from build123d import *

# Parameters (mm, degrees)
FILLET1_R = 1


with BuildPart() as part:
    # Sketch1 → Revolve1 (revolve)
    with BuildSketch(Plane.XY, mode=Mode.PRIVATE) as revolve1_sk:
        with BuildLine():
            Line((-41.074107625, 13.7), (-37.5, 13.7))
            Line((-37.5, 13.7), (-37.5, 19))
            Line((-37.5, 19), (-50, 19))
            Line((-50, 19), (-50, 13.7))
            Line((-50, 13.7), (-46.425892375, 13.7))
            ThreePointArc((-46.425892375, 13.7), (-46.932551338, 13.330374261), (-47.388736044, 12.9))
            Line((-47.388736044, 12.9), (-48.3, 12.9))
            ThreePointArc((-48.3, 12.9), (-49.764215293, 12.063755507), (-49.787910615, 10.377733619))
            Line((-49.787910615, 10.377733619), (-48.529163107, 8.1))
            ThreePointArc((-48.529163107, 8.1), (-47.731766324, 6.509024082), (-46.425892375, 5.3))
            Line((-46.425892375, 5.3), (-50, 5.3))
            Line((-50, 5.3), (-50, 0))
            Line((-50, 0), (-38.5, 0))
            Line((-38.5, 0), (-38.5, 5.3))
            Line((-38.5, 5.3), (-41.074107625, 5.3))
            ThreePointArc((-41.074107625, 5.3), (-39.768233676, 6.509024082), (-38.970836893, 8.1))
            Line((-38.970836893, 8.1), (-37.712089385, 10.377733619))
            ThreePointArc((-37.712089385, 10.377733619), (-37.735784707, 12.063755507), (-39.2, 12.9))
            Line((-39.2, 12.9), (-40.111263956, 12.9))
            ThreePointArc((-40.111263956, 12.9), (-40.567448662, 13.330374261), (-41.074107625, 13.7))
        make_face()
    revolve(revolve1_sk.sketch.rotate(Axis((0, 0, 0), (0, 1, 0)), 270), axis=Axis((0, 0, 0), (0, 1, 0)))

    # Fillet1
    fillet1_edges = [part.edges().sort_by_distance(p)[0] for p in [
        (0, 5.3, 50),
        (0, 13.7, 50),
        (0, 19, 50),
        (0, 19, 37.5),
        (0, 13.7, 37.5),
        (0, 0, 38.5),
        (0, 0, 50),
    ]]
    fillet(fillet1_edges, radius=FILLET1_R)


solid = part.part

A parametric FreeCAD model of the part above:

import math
import FreeCAD as App
import Part
import Sketcher


def edges_at(feature, points):
    """Names of the edges that pass closest to the given points."""
    edges = feature.Shape.Edges
    near = lambda p: min(range(len(edges)), key=lambda i: edges[i].distToShape(Part.Vertex(*p))[0])
    return sorted({f"Edge{near(p) + 1}" for p in points})

doc = App.newDocument("Part")
body = doc.addObject("PartDesign::Body", "Body")

# Sketch on XY plane
sketch1 = body.newObject("Sketcher::SketchObject", "Sketch")
sketch1.AttachmentSupport = (doc.getObject("XY_Plane"), [""])
sketch1.MapMode = "FlatFace"
sketch1.addGeometry(Part.LineSegment(App.Vector(-41.074108, 13.7, 0), App.Vector(-37.5, 13.7, 0)), False)
sketch1.addGeometry(Part.LineSegment(App.Vector(-37.5, 13.7, 0), App.Vector(-37.5, 19, 0)), False)
sketch1.addGeometry(Part.LineSegment(App.Vector(-37.5, 19, 0), App.Vector(-50, 19, 0)), False)
sketch1.addGeometry(Part.LineSegment(App.Vector(-50, 19, 0), App.Vector(-50, 13.7, 0)), False)
sketch1.addGeometry(Part.LineSegment(App.Vector(-50, 13.7, 0), App.Vector(-46.425892, 13.7, 0)), False)
sketch1.addGeometry(Part.ArcOfCircle(Part.Circle(App.Vector(-43.75, 9.5, 0), App.Vector(0, 0, 1), 4.98), math.radians(122.501914), math.radians(136.942583)), False)
sketch1.addGeometry(Part.LineSegment(App.Vector(-47.388736, 12.9, 0), App.Vector(-48.3, 12.9, 0)), False)
sketch1.addGeometry(Part.ArcOfCircle(Part.Circle(App.Vector(-48.3, 11.2, 0), App.Vector(0, 0, 1), 1.7), math.radians(90), math.radians(208.926425)), False)
sketch1.addGeometry(Part.LineSegment(App.Vector(-49.787911, 10.377734, 0), App.Vector(-48.529163, 8.1, 0)), False)
sketch1.addGeometry(Part.ArcOfCircle(Part.Circle(App.Vector(-43.75, 9.5, 0), App.Vector(0, 0, 1), 4.98), math.radians(-163.67267), math.radians(-122.501914)), False)
sketch1.addGeometry(Part.LineSegment(App.Vector(-46.425892, 5.3, 0), App.Vector(-50, 5.3, 0)), False)
sketch1.addGeometry(Part.LineSegment(App.Vector(-50, 5.3, 0), App.Vector(-50, 0, 0)), False)
sketch1.addGeometry(Part.LineSegment(App.Vector(-50, 0, 0), App.Vector(-38.5, 0, 0)), False)
sketch1.addGeometry(Part.LineSegment(App.Vector(-38.5, 0, 0), App.Vector(-38.5, 5.3, 0)), False)
sketch1.addGeometry(Part.LineSegment(App.Vector(-38.5, 5.3, 0), App.Vector(-41.074108, 5.3, 0)), False)
sketch1.addGeometry(Part.ArcOfCircle(Part.Circle(App.Vector(-43.75, 9.5, 0), App.Vector(0, 0, 1), 4.98), math.radians(-57.498086), math.radians(-16.32733)), False)
sketch1.addGeometry(Part.LineSegment(App.Vector(-38.970837, 8.1, 0), App.Vector(-37.712089, 10.377734, 0)), False)
sketch1.addGeometry(Part.ArcOfCircle(Part.Circle(App.Vector(-39.2, 11.2, 0), App.Vector(0, 0, 1), 1.7), math.radians(-28.926425), math.radians(90)), False)
sketch1.addGeometry(Part.LineSegment(App.Vector(-39.2, 12.9, 0), App.Vector(-40.111264, 12.9, 0)), False)
sketch1.addGeometry(Part.ArcOfCircle(Part.Circle(App.Vector(-43.75, 9.5, 0), App.Vector(0, 0, 1), 4.98), math.radians(43.057417), math.radians(57.498086)), False)
sketch1.addConstraint(Sketcher.Constraint("Coincident", 0, 2, 1, 1))
sketch1.addConstraint(Sketcher.Constraint("Coincident", 1, 2, 2, 1))
sketch1.addConstraint(Sketcher.Constraint("Coincident", 2, 2, 3, 1))
sketch1.addConstraint(Sketcher.Constraint("Coincident", 3, 2, 4, 1))
sketch1.addConstraint(Sketcher.Constraint("Coincident", 4, 2, 5, 1))
sketch1.addConstraint(Sketcher.Constraint("Coincident", 5, 2, 6, 1))
sketch1.addConstraint(Sketcher.Constraint("Tangent", 6, 2, 7, 1))
sketch1.addConstraint(Sketcher.Constraint("Tangent", 7, 2, 8, 1))
sketch1.addConstraint(Sketcher.Constraint("Coincident", 8, 2, 9, 1))
sketch1.addConstraint(Sketcher.Constraint("Coincident", 9, 2, 10, 1))
sketch1.addConstraint(Sketcher.Constraint("Coincident", 10, 2, 11, 1))
sketch1.addConstraint(Sketcher.Constraint("Coincident", 11, 2, 12, 1))
sketch1.addConstraint(Sketcher.Constraint("Coincident", 12, 2, 13, 1))
sketch1.addConstraint(Sketcher.Constraint("Coincident", 13, 2, 14, 1))
sketch1.addConstraint(Sketcher.Constraint("Coincident", 14, 2, 15, 1))
sketch1.addConstraint(Sketcher.Constraint("Coincident", 15, 2, 16, 1))
sketch1.addConstraint(Sketcher.Constraint("Tangent", 16, 2, 17, 1))
sketch1.addConstraint(Sketcher.Constraint("Tangent", 17, 2, 18, 1))
sketch1.addConstraint(Sketcher.Constraint("Coincident", 18, 2, 19, 1))
sketch1.addConstraint(Sketcher.Constraint("Coincident", 19, 2, 0, 1))
sketch1.addConstraint(Sketcher.Constraint("Horizontal", 0))
sketch1.addConstraint(Sketcher.Constraint("Vertical", 1))
sketch1.addConstraint(Sketcher.Constraint("Horizontal", 2))
sketch1.addConstraint(Sketcher.Constraint("Vertical", 3))
sketch1.addConstraint(Sketcher.Constraint("Horizontal", 4))
sketch1.addConstraint(Sketcher.Constraint("Horizontal", 6))
sketch1.addConstraint(Sketcher.Constraint("Horizontal", 10))
sketch1.addConstraint(Sketcher.Constraint("Vertical", 11))
sketch1.addConstraint(Sketcher.Constraint("Horizontal", 12))
sketch1.addConstraint(Sketcher.Constraint("Vertical", 13))
sketch1.addConstraint(Sketcher.Constraint("Horizontal", 14))
sketch1.addConstraint(Sketcher.Constraint("Horizontal", 18))
sketch1.addConstraint(Sketcher.Constraint("Coincident", 9, 3, 5, 3))
sketch1.addConstraint(Sketcher.Constraint("Coincident", 15, 3, 5, 3))
sketch1.addConstraint(Sketcher.Constraint("Coincident", 19, 3, 5, 3))
sketch1.addConstraint(Sketcher.Constraint("Equal", 5, 9))
sketch1.addConstraint(Sketcher.Constraint("Equal", 9, 15))
sketch1.addConstraint(Sketcher.Constraint("Equal", 7, 17))
sketch1.addConstraint(Sketcher.Constraint("Equal", 15, 19))
sketch1.addConstraint(Sketcher.Constraint("PointOnObject", 11, 2, -1))
sketch1.addConstraint(Sketcher.Constraint("Horizontal", 7, 3, 17, 3))
sketch1.addConstraint(Sketcher.Constraint("Horizontal", 0, 2, 3, 2))
sketch1.addConstraint(Sketcher.Constraint("Horizontal", 10, 2, 13, 2))
sketch1.addConstraint(Sketcher.Constraint("Horizontal", 8, 2, 15, 2))
sketch1.addConstraint(Sketcher.Constraint("Horizontal", 7, 2, 16, 2))
sketch1.addConstraint(Sketcher.Constraint("Vertical", 4, 2, 9, 2))
sketch1.addConstraint(Sketcher.Constraint("Vertical", 3, 2, 10, 2))
sketch1.addConstraint(Sketcher.Constraint("Equal", 0, 4))
sketch1.addConstraint(Sketcher.Constraint("Equal", 3, 11))
sketch1.addConstraint(Sketcher.Constraint("Radius", 7, 1.7))
sketch1.addConstraint(Sketcher.Constraint("Radius", 5, 4.98))
sketch1.addConstraint(Sketcher.Constraint("DistanceX", 2, 2, 2, 1, 12.5))
sketch1.addConstraint(Sketcher.Constraint("DistanceX", 12, 1, 12, 2, 11.5))
sketch1.addConstraint(Sketcher.Constraint("DistanceY", 1, 1, 1, 2, 5.3))
sketch1.addConstraint(Sketcher.Constraint("DistanceY", -1, 1, 1, 2, 19.0))
sketch1.addConstraint(Sketcher.Constraint("DistanceX", 2, 2, -1, 1, 50.0))
sketch1.addConstraint(Sketcher.Constraint("DistanceX", 7, 3, -1, 1, 48.3))
sketch1.addConstraint(Sketcher.Constraint("DistanceY", -1, 1, 7, 3, 11.2))
sketch1.addConstraint(Sketcher.Constraint("DistanceY", -1, 1, 8, 2, 8.1))
revolution = body.newObject("PartDesign::Revolution", "Revolution")
revolution.Profile = sketch1
revolution.ReferenceAxis = (sketch1, ["V_Axis"])
revolution.Angle = 360
doc.recompute()

fillet = body.newObject("PartDesign::Fillet", "Fillet")
fillet.Base = (revolution, edges_at(revolution, [
    (0, 5.3, 50),
    (0, 13.7, 50),
    (0, 19, 50),
    (0, 19, 37.5),
    (0, 13.7, 37.5),
    (0, 0, 38.5),
    (0, 0, 50),
]))
fillet.Radius = 1

doc.recompute()
